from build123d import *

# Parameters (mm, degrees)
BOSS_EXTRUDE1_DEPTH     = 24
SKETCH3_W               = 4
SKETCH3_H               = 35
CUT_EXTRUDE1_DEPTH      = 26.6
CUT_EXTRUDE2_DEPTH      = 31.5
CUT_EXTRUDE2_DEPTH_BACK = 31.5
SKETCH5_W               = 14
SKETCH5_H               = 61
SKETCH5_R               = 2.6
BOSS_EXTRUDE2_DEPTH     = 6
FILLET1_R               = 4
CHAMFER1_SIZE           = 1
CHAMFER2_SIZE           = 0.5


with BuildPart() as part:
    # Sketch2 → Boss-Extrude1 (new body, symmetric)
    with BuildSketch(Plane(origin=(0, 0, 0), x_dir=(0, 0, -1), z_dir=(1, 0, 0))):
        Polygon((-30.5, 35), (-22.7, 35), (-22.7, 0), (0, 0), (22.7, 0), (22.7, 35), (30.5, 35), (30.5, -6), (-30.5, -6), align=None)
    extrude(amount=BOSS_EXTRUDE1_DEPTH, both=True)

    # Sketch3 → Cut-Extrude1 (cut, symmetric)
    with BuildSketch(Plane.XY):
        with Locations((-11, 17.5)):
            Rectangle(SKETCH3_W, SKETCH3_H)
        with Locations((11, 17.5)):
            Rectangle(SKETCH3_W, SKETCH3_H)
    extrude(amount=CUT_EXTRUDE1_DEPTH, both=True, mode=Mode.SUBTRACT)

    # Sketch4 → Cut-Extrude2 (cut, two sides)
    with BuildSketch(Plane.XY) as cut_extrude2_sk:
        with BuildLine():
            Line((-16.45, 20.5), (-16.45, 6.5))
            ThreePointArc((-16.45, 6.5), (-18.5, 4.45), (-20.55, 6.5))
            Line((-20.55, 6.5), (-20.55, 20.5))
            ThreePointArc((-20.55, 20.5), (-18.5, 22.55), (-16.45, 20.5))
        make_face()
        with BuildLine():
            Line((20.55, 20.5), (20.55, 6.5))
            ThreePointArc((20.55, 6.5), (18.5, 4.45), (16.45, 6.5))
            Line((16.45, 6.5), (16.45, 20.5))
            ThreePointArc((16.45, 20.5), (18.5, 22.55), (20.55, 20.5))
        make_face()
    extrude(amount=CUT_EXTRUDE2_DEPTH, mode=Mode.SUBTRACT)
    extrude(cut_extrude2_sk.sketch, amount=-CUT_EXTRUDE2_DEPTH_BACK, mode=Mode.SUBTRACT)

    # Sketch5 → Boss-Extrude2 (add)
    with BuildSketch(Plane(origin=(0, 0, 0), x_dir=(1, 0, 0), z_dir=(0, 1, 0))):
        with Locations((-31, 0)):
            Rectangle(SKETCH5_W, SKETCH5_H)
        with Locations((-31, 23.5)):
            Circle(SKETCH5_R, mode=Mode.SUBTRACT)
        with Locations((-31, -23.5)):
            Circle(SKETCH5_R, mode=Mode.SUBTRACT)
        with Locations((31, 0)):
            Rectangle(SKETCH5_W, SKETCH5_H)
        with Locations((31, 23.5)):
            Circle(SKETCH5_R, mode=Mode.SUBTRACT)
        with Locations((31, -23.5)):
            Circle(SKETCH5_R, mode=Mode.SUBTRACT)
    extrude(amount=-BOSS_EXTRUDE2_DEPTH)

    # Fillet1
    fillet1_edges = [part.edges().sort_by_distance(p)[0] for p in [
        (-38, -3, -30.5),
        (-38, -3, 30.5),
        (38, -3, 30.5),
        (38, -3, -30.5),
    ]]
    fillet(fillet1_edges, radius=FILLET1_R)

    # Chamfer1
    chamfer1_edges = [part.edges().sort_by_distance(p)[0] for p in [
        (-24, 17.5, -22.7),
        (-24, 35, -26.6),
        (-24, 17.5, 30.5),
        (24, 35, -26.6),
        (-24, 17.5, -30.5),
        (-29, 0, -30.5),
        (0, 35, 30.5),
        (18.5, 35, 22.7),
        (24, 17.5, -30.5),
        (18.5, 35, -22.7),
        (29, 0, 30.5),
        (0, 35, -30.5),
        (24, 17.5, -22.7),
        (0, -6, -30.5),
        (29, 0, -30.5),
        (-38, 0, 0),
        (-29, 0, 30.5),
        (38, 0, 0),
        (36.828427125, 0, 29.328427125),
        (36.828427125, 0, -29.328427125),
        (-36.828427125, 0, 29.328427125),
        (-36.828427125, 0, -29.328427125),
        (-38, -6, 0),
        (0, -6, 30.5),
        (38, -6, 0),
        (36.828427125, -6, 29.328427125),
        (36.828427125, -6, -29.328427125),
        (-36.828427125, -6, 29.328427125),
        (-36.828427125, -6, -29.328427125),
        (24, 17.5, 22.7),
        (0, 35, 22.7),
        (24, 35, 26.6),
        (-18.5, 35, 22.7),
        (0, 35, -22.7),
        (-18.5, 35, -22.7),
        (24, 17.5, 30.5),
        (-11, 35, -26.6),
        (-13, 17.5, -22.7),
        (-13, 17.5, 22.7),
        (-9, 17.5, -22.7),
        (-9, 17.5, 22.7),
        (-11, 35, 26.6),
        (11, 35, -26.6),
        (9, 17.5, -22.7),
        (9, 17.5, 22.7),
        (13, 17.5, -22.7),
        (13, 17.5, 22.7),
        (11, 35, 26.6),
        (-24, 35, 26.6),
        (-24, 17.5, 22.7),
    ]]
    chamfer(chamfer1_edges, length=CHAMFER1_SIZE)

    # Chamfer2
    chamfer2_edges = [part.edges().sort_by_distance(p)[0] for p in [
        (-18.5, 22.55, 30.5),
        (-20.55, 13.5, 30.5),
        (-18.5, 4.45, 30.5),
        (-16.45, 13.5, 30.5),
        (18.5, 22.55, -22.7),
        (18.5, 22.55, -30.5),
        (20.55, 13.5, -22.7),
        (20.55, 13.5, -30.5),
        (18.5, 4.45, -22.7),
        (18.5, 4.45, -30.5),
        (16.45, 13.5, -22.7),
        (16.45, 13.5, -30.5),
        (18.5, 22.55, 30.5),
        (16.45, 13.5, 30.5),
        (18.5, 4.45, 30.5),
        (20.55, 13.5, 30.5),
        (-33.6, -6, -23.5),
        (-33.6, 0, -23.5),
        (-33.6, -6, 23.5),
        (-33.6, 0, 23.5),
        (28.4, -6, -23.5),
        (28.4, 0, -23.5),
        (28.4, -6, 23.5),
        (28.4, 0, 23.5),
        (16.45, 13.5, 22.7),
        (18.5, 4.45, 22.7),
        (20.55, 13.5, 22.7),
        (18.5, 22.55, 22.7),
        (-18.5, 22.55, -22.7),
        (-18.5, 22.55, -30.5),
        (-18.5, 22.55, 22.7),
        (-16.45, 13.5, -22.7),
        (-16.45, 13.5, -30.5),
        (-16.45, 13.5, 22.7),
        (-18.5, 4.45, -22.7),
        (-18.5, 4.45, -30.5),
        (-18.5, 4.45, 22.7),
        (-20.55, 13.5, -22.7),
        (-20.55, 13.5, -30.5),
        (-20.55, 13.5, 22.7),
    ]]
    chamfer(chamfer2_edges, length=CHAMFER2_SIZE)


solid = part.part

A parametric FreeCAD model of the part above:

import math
import FreeCAD as App
import Part
import Sketcher
from FreeCAD import Vector


def edges_at(feature, points):
    """Names of the edges that pass closest to the given points."""
    edges = feature.Shape.Edges
    near = lambda p: min(range(len(edges)), key=lambda i: edges[i].distToShape(Part.Vertex(*p))[0])
    return sorted({f"Edge{near(p) + 1}" for p in points})


def add_polygon(sketch, points):
    """Adds a closed chain of lines whose ends are joined by coincident constraints."""
    first, n = sketch.GeometryCount, len(points)
    for a, b in zip(points, points[1:] + points[:1]):
        sketch.addGeometry(Part.LineSegment(App.Vector(*a, 0), App.Vector(*b, 0)), False)
    for i in range(n):
        sketch.addConstraint(Sketcher.Constraint("Coincident", first + i, 2, first + (i + 1) % n, 1))

doc = App.newDocument("Part")
body = doc.addObject("PartDesign::Body", "Body")

# Sketch on YZ plane
sketch1 = doc.addObject("Sketcher::SketchObject", "Sketch")
body.addObject(sketch1)
sketch1.AttachmentSupport = (doc.YZ_Plane, [""])
sketch1.MapMode = "FlatFace"
add_polygon(sketch1, [(35, 23), (35, 30), (-6, 30), (-6, -30), (35, -30), (35, -23), (0, -23), (0, 23)])  # lines 0-7
sketch1.addConstraint(Sketcher.Constraint("Vertical", 0))
sketch1.addConstraint(Sketcher.Constraint("Horizontal", 1))
sketch1.addConstraint(Sketcher.Constraint("Vertical", 2))
sketch1.addConstraint(Sketcher.Constraint("Horizontal", 3))
sketch1.addConstraint(Sketcher.Constraint("Vertical", 4))
sketch1.addConstraint(Sketcher.Constraint("Horizontal", 5))
sketch1.addConstraint(Sketcher.Constraint("Vertical", 6))
sketch1.addConstraint(Sketcher.Constraint("Horizontal", 7))
sketch1.addConstraint(Sketcher.Constraint("Symmetric", 5, 2, 6, 2, -1, 1))
sketch1.addConstraint(Sketcher.Constraint("Symmetric", 0, 2, 3, 2, -1))
sketch1.addConstraint(Sketcher.Constraint("DistanceX", 1, 2, 1, 1, 41.0))
sketch1.addConstraint(Sketcher.Constraint("DistanceX", 5, 2, 5, 1, 35.0))
sketch1.addConstraint(Sketcher.Constraint("DistanceY", 2, 2, 2, 1, 61.0))
sketch1.addConstraint(Sketcher.Constraint("DistanceY", 0, 1, 0, 2, 7.8))
pad1 = doc.addObject("PartDesign::Pad", "Pad")
body.addObject(pad1)
pad1.Profile = sketch1
pad1.Length = 48
pad1.Midplane = True

# Sketch on XY plane
sketch2 = doc.addObject("Sketcher::SketchObject", "Sketch001")
body.addObject(sketch2)
sketch2.AttachmentSupport = (doc.XY_Plane, [""])
sketch2.MapMode = "FlatFace"
add_polygon(sketch2, [(-13, 35), (-13, 0), (-9, 0), (-9, 35)])  # lines 0-3
add_polygon(sketch2, [(9, 35), (9, 0), (13, 0), (13, 35)])  # lines 4-7
sketch2.addConstraint(Sketcher.Constraint("Vertical", 0))
sketch2.addConstraint(Sketcher.Constraint("Horizontal", 1))
sketch2.addConstraint(Sketcher.Constraint("Vertical", 2))
sketch2.addConstraint(Sketcher.Constraint("Horizontal", 3))
sketch2.addConstraint(Sketcher.Constraint("Vertical", 4))
sketch2.addConstraint(Sketcher.Constraint("Horizontal", 5))
sketch2.addConstraint(Sketcher.Constraint("Vertical", 6))
sketch2.addConstraint(Sketcher.Constraint("Horizontal", 7))
sketch2.addConstraint(Sketcher.Constraint("Symmetric", 1, 2, 4, 2, -1, 1))
sketch2.addConstraint(Sketcher.Constraint("Symmetric", 0, 2, 5, 2, -2))
sketch2.addConstraint(Sketcher.Constraint("Horizontal", 3, 2, 6, 2))
sketch2.addConstraint(Sketcher.Constraint("DistanceX", 1, 1, 1, 2, 4.0))
sketch2.addConstraint(Sketcher.Constraint("DistanceY", 0, 2, 0, 1, 35.0))
sketch2.addConstraint(Sketcher.Constraint("DistanceX", 0, 2, -1, 1, 13.0))
pocket1 = doc.addObject("PartDesign::Pocket", "Pocket")
body.addObject(pocket1)
pocket1.Profile = sketch2
pocket1.Length = 53.2
pocket1.Midplane = True

# Sketch on XY plane
sketch3 = doc.addObject("Sketcher::SketchObject", "Sketch002")
body.addObject(sketch3)
sketch3.AttachmentSupport = (doc.XY_Plane, [""])
sketch3.MapMode = "FlatFace"
sketch3.addGeometry(Part.LineSegment(Vector(-16.4, 6.5, 0), Vector(-16.4, 20.5, 0)), False)
sketch3.addGeometry(Part.ArcOfCircle(Part.Circle(Vector(-18.5, 20.5, 0), Vector(0, 0, 1), 2), math.radians(0), math.radians(180)), False)
sketch3.addGeometry(Part.LineSegment(Vector(-20.6, 20.5, 0), Vector(-20.6, 6.5, 0)), False)
sketch3.addGeometry(Part.ArcOfCircle(Part.Circle(Vector(-18.5, 6.5, 0), Vector(0, 0, 1), 2), math.radians(180), math.radians(360)), False)
sketch3.addGeometry(Part.LineSegment(Vector(20.6, 6.5, 0), Vector(20.6, 20.5, 0)), False)
sketch3.addGeometry(Part.ArcOfCircle(Part.Circle(Vector(18.5, 20.5, 0), Vector(0, 0, 1), 2), math.radians(0), math.radians(180)), False)
sketch3.addGeometry(Part.LineSegment(Vector(16.4, 20.5, 0), Vector(16.4, 6.5, 0)), False)
sketch3.addGeometry(Part.ArcOfCircle(Part.Circle(Vector(18.5, 6.5, 0), Vector(0, 0, 1), 2), math.radians(180), math.radians(360)), False)
sketch3.addConstraint(Sketcher.Constraint("Tangent", 0, 2, 1, 1))
sketch3.addConstraint(Sketcher.Constraint("Tangent", 1, 2, 2, 1))
sketch3.addConstraint(Sketcher.Constraint("Tangent", 2, 2, 3, 1))
sketch3.addConstraint(Sketcher.Constraint("Tangent", 3, 2, 0, 1))
sketch3.addConstraint(Sketcher.Constraint("Tangent", 4, 2, 5, 1))
sketch3.addConstraint(Sketcher.Constraint("Tangent", 5, 2, 6, 1))
sketch3.addConstraint(Sketcher.Constraint("Tangent", 6, 2, 7, 1))
sketch3.addConstraint(Sketcher.Constraint("Tangent", 7, 2, 4, 1))
sketch3.addConstraint(Sketcher.Constraint("Vertical", 0))
sketch3.addConstraint(Sketcher.Constraint("Vertical", 2))
sketch3.addConstraint(Sketcher.Constraint("Vertical", 4))
sketch3.addConstraint(Sketcher.Constraint("Vertical", 6))
sketch3.addConstraint(Sketcher.Constraint("Equal", 3, 5))
sketch3.addConstraint(Sketcher.Constraint("Symmetric", 1, 3, 5, 3, -2))
sketch3.addConstraint(Sketcher.Constraint("Horizontal", 3, 3, 7, 3))
sketch3.addConstraint(Sketcher.Constraint("DistanceY", 0, 1, 0, 2, 14.0))
sketch3.addConstraint(Sketcher.Constraint("Radius", 1, 2.05))
sketch3.addConstraint(Sketcher.Constraint("DistanceX", 1, 3, 5, 3, 37.0))
sketch3.addConstraint(Sketcher.Constraint("DistanceY", -1, 1, 1, 3, 20.5))
pocket2 = doc.addObject("PartDesign::Pocket", "Pocket001")
body.addObject(pocket2)
pocket2.Profile = sketch3
pocket2.Type = "ThroughAll"
pocket2.Midplane = True

# Sketch on XZ plane
sketch4 = doc.addObject("Sketcher::SketchObject", "Sketch003")
body.addObject(sketch4)
sketch4.AttachmentSupport = (doc.XZ_Plane, [""])
sketch4.MapMode = "FlatFace"
add_polygon(sketch4, [(-38, -30.5), (-38, 30.5), (-24, 30.5), (-24, -30.5)])  # lines 0-3
sketch4.addGeometry(Part.Circle(Vector(-31, 23.5, 0), Vector(0, 0, 1), 2.6), False)  # 4
sketch4.addGeometry(Part.Circle(Vector(-31, -23.5, 0), Vector(0, 0, 1), 2.6), False)  # 5
add_polygon(sketch4, [(24, -30.5), (24, 30.5), (38, 30.5), (38, -30.5)])  # lines 6-9
sketch4.addGeometry(Part.Circle(Vector(31, 23.5, 0), Vector(0, 0, 1), 2.6), False)  # 10
sketch4.addGeometry(Part.Circle(Vector(31, -23.5, 0), Vector(0, 0, 1), 2.6), False)  # 11
sketch4.addConstraint(Sketcher.Constraint("Vertical", 0))
sketch4.addConstraint(Sketcher.Constraint("Horizontal", 1))
sketch4.addConstraint(Sketcher.Constraint("Vertical", 2))
sketch4.addConstraint(Sketcher.Constraint("Horizontal", 3))
sketch4.addConstraint(Sketcher.Constraint("Vertical", 6))
sketch4.addConstraint(Sketcher.Constraint("Horizontal", 7))
sketch4.addConstraint(Sketcher.Constraint("Vertical", 8))
sketch4.addConstraint(Sketcher.Constraint("Horizontal", 9))
sketch4.addConstraint(Sketcher.Constraint("Equal", 4, 5))
sketch4.addConstraint(Sketcher.Constraint("Equal", 5, 10))
sketch4.addConstraint(Sketcher.Constraint("Equal", 10, 11))
sketch4.addConstraint(Sketcher.Constraint("Symmetric", 5, 3, 10, 3, -1, 1))
sketch4.addConstraint(Sketcher.Constraint("Symmetric", 4, 3, 11, 3, -1, 1))
sketch4.addConstraint(Sketcher.Constraint("Symmetric", 2, 2, 6, 2, -1, 1))
sketch4.addConstraint(Sketcher.Constraint("Symmetric", 0, 2, 8, 2, -1, 1))
sketch4.addConstraint(Sketcher.Constraint("Symmetric", 4, 3, 10, 3, -2))
sketch4.addConstraint(Sketcher.Constraint("Horizontal", 1, 2, 6, 2))
sketch4.addConstraint(Sketcher.Constraint("Diameter", 4, 5.2))
sketch4.addConstraint(Sketcher.Constraint("DistanceX", 1, 1, 1, 2, 14.0))
sketch4.addConstraint(Sketcher.Constraint("DistanceY", 0, 1, 0, 2, 61.0))
sketch4.addConstraint(Sketcher.Constraint("DistanceX", 4, 3, -1, 1, 31.0))
sketch4.addConstraint(Sketcher.Constraint("DistanceX", 0, 2, -1, 1, 38.0))
sketch4.addConstraint(Sketcher.Constraint("DistanceY", 5, 3, 4, 3, 47.0))
pad2 = doc.addObject("PartDesign::Pad", "Pad001")
body.addObject(pad2)
pad2.Profile = sketch4
pad2.Length = 6
doc.recompute()

fillet = doc.addObject("PartDesign::Fillet", "Fillet")
body.addObject(fillet)
fillet.Base = (pad2, edges_at(pad2, [
    (-38, -3, -30.5),
    (-38, -3, 30.5),
    (38, -3, 30.5),
    (38, -3, -30.5),
]))
fillet.Radius = 4
doc.recompute()

chamfer = doc.addObject("PartDesign::Chamfer", "Chamfer")
body.addObject(chamfer)
chamfer.Base = (fillet, edges_at(fillet, [
    (-24, 17.5, -22.7),
    (-24, 35, -26.6),
    (-24, 17.5, 30.5),
    (24, 35, -26.6),
    (-24, 17.5, -30.5),
    (-29, 0, -30.5),
    (0, 35, 30.5),
    (18.5, 35, 22.7),
    (24, 17.5, -30.5),
    (18.5, 35, -22.7),
    (29, 0, 30.5),
    (0, 35, -30.5),
    (24, 17.5, -22.7),
    (0, -6, -30.5),
    (29, 0, -30.5),
    (-38, 0, 0),
    (-29, 0, 30.5),
    (38, 0, 0),
    (36.828, 0, 29.328),
    (36.828, 0, -29.328),
    (-36.828, 0, 29.328),
    (-36.828, 0, -29.328),
    (-38, -6, 0),
    (0, -6, 30.5),
    (38, -6, 0),
    (36.828, -6, 29.328),
    (36.828, -6, -29.328),
    (-36.828, -6, 29.328),
    (-36.828, -6, -29.328),
    (24, 17.5, 22.7),
    (0, 35, 22.7),
    (24, 35, 26.6),
    (-18.5, 35, 22.7),
    (0, 35, -22.7),
    (-18.5, 35, -22.7),
    (24, 17.5, 30.5),
    (-11, 35, -26.6),
    (-13, 17.5, -22.7),
    (-13, 17.5, 22.7),
    (-9, 17.5, -22.7),
    (-9, 17.5, 22.7),
    (-11, 35, 26.6),
    (11, 35, -26.6),
    (9, 17.5, -22.7),
    (9, 17.5, 22.7),
    (13, 17.5, -22.7),
    (13, 17.5, 22.7),
    (11, 35, 26.6),
    (-24, 35, 26.6),
    (-24, 17.5, 22.7),
]))
chamfer.Size = 1
doc.recompute()

chamfer2 = doc.addObject("PartDesign::Chamfer", "Chamfer001")
body.addObject(chamfer2)
chamfer2.Base = (chamfer, edges_at(chamfer, [
    (-18.5, 22.55, 30.5),
    (-20.55, 13.5, 30.5),
    (-18.5, 4.45, 30.5),
    (-16.45, 13.5, 30.5),
    (18.5, 22.55, -22.7),
    (18.5, 22.55, -30.5),
    (20.55, 13.5, -22.7),
    (20.55, 13.5, -30.5),
    (18.5, 4.45, -22.7),
    (18.5, 4.45, -30.5),
    (16.45, 13.5, -22.7),
    (16.45, 13.5, -30.5),
    (18.5, 22.55, 30.5),
    (16.45, 13.5, 30.5),
    (18.5, 4.45, 30.5),
    (20.55, 13.5, 30.5),
    (-33.6, -6, -23.5),
    (-33.6, 0, -23.5),
    (-33.6, -6, 23.5),
    (-33.6, 0, 23.5),
    (28.4, -6, -23.5),
    (28.4, 0, -23.5),
    (28.4, -6, 23.5),
    (28.4, 0, 23.5),
    (16.45, 13.5, 22.7),
    (18.5, 4.45, 22.7),
    (20.55, 13.5, 22.7),
    (18.5, 22.55, 22.7),
    (-18.5, 22.55, -22.7),
    (-18.5, 22.55, -30.5),
    (-18.5, 22.55, 22.7),
    (-16.45, 13.5, -22.7),
    (-16.45, 13.5, -30.5),
    (-16.45, 13.5, 22.7),
    (-18.5, 4.45, -22.7),
    (-18.5, 4.45, -30.5),
    (-18.5, 4.45, 22.7),
    (-20.55, 13.5, -22.7),
    (-20.55, 13.5, -30.5),
    (-20.55, 13.5, 22.7),
]))
chamfer2.Size = 0.5

doc.recompute()
